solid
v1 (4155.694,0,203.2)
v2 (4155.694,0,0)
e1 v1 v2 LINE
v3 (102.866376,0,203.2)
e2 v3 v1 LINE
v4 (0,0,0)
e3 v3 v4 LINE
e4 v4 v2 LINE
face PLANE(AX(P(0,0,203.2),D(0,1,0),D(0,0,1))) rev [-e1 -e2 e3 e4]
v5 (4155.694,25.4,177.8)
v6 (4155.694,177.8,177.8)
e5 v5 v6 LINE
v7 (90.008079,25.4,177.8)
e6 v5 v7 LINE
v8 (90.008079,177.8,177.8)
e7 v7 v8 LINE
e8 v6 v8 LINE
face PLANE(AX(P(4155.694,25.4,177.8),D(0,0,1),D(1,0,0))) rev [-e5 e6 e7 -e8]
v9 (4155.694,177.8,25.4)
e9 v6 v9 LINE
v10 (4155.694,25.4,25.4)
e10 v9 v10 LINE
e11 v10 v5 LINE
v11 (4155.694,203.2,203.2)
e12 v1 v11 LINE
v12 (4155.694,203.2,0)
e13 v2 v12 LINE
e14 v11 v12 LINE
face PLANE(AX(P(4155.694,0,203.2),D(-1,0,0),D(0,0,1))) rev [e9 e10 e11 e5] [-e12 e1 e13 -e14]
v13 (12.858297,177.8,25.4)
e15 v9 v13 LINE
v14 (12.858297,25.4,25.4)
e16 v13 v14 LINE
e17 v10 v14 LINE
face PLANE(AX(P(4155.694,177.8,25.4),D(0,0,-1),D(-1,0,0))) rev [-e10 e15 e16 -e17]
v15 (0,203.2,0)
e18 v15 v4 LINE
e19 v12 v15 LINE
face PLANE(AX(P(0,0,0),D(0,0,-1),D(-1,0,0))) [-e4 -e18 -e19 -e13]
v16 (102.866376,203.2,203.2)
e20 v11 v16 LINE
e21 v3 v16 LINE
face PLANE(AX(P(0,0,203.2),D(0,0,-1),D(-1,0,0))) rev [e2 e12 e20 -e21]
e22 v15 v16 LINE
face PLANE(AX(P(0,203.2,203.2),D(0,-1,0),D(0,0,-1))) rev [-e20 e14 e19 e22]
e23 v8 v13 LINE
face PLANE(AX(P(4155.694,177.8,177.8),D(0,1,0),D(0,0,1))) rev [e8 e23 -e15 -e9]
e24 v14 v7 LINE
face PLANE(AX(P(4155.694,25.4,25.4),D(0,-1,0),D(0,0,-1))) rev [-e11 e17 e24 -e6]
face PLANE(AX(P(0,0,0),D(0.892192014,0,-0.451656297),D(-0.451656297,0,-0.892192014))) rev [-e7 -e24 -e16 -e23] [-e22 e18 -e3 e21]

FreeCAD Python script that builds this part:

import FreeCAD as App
import Part
import Sketcher

V = App.Vector
Q = App.Units.Quantity


def add_polygon(sketch, points):
    """Adds a closed chain of lines whose ends are joined by coincident constraints."""
    first, n = sketch.GeometryCount, len(points)
    for a, b in zip(points, points[1:] + points[:1]):
        sketch.addGeometry(Part.LineSegment(App.Vector(*a, 0), App.Vector(*b, 0)), False)
    for i in range(n):
        sketch.addConstraint(Sketcher.Constraint("Coincident", first + i, 2, first + (i + 1) % n, 1))

doc = App.newDocument("Part")
body = doc.addObject("PartDesign::Body", "Body")

# Sketch on XY plane
sketch1 = doc.addObject("Sketcher::SketchObject", "Sketch")
body.addObject(sketch1)
sketch1.AttachmentSupport = (doc.XY_Plane, [""])
sketch1.MapMode = "FlatFace"
add_polygon(sketch1, [(0, 203), (0, 0), (4156, 0), (4156, 203)])  # lines 0-3
sketch1.addConstraint([
    Sketcher.Constraint("Vertical", 0),
    Sketcher.Constraint("Horizontal", 1),
    Sketcher.Constraint("Vertical", 2),
    Sketcher.Constraint("Horizontal", 3),
    Sketcher.Constraint("Coincident", 0, 2, -1, 1),
    Sketcher.Constraint("DistanceY", 0, 2, 0, 1, Q("8 in")),
    Sketcher.Constraint("DistanceX", 1, 1, 1, 2, Q("163.61 in")),
])
pad1 = doc.addObject("PartDesign::Pad", "Pad")
body.addObject(pad1)
pad1.Profile = sketch1
pad1.Length = Q("8 in")

# Sketch on YZ plane
sketch2 = doc.addObject("Sketcher::SketchObject", "Sketch001")
body.addObject(sketch2)
sketch2.AttachmentSupport = (doc.YZ_Plane, [""])
sketch2.MapMode = "FlatFace"
add_polygon(sketch2, [(178, 25), (25, 25), (25, 178), (178, 178)])  # lines 0-3
sketch2.addConstraint([
    Sketcher.Constraint("Horizontal", 0),
    Sketcher.Constraint("Vertical", 1),
    Sketcher.Constraint("Horizontal", 2),
    Sketcher.Constraint("Vertical", 3),
    Sketcher.Constraint("Equal", 2, 1),
    Sketcher.Constraint("DistanceX", 0, 2, 0, 1, Q("6 in")),
    Sketcher.Constraint("DistanceX", -1, 1, 0, 2, Q("1 in")),
    Sketcher.Constraint("DistanceY", -1, 1, 0, 2, Q("1 in")),
])
pocket1 = doc.addObject("PartDesign::Pocket", "Pocket")
body.addObject(pocket1)
pocket1.Profile = sketch2
pocket1.Type = "ThroughAll"
pocket1.Midplane = True

# Sketch on XZ plane
sketch3 = doc.addObject("Sketcher::SketchObject", "Sketch002")
body.addObject(sketch3)
sketch3.AttachmentSupport = (doc.XZ_Plane, [""])
sketch3.MapMode = "FlatFace"
sketch3.AttachmentOffset = App.Placement(V(0, 0, -8 * 25.4), App.Rotation())
add_polygon(sketch3, [(103, 203), (0, 0), (0, 203)])  # lines 0-2
sketch3.addConstraint([
    Sketcher.Constraint("Vertical", 1),
    Sketcher.Constraint("Horizontal", 2),
    Sketcher.Constraint("Coincident", 0, 2, -1, 1),
    Sketcher.Constraint("DistanceY", 1, 1, 1, 2, Q("8 in")),
    Sketcher.Constraint("Angle", 0, Q("-116.85 deg")),
])
pocket2 = doc.addObject("PartDesign::Pocket", "Pocket001")
body.addObject(pocket2)
pocket2.Profile = sketch3
pocket2.Type = "ThroughAll"
pocket2.Midplane = True

doc.recompute()
